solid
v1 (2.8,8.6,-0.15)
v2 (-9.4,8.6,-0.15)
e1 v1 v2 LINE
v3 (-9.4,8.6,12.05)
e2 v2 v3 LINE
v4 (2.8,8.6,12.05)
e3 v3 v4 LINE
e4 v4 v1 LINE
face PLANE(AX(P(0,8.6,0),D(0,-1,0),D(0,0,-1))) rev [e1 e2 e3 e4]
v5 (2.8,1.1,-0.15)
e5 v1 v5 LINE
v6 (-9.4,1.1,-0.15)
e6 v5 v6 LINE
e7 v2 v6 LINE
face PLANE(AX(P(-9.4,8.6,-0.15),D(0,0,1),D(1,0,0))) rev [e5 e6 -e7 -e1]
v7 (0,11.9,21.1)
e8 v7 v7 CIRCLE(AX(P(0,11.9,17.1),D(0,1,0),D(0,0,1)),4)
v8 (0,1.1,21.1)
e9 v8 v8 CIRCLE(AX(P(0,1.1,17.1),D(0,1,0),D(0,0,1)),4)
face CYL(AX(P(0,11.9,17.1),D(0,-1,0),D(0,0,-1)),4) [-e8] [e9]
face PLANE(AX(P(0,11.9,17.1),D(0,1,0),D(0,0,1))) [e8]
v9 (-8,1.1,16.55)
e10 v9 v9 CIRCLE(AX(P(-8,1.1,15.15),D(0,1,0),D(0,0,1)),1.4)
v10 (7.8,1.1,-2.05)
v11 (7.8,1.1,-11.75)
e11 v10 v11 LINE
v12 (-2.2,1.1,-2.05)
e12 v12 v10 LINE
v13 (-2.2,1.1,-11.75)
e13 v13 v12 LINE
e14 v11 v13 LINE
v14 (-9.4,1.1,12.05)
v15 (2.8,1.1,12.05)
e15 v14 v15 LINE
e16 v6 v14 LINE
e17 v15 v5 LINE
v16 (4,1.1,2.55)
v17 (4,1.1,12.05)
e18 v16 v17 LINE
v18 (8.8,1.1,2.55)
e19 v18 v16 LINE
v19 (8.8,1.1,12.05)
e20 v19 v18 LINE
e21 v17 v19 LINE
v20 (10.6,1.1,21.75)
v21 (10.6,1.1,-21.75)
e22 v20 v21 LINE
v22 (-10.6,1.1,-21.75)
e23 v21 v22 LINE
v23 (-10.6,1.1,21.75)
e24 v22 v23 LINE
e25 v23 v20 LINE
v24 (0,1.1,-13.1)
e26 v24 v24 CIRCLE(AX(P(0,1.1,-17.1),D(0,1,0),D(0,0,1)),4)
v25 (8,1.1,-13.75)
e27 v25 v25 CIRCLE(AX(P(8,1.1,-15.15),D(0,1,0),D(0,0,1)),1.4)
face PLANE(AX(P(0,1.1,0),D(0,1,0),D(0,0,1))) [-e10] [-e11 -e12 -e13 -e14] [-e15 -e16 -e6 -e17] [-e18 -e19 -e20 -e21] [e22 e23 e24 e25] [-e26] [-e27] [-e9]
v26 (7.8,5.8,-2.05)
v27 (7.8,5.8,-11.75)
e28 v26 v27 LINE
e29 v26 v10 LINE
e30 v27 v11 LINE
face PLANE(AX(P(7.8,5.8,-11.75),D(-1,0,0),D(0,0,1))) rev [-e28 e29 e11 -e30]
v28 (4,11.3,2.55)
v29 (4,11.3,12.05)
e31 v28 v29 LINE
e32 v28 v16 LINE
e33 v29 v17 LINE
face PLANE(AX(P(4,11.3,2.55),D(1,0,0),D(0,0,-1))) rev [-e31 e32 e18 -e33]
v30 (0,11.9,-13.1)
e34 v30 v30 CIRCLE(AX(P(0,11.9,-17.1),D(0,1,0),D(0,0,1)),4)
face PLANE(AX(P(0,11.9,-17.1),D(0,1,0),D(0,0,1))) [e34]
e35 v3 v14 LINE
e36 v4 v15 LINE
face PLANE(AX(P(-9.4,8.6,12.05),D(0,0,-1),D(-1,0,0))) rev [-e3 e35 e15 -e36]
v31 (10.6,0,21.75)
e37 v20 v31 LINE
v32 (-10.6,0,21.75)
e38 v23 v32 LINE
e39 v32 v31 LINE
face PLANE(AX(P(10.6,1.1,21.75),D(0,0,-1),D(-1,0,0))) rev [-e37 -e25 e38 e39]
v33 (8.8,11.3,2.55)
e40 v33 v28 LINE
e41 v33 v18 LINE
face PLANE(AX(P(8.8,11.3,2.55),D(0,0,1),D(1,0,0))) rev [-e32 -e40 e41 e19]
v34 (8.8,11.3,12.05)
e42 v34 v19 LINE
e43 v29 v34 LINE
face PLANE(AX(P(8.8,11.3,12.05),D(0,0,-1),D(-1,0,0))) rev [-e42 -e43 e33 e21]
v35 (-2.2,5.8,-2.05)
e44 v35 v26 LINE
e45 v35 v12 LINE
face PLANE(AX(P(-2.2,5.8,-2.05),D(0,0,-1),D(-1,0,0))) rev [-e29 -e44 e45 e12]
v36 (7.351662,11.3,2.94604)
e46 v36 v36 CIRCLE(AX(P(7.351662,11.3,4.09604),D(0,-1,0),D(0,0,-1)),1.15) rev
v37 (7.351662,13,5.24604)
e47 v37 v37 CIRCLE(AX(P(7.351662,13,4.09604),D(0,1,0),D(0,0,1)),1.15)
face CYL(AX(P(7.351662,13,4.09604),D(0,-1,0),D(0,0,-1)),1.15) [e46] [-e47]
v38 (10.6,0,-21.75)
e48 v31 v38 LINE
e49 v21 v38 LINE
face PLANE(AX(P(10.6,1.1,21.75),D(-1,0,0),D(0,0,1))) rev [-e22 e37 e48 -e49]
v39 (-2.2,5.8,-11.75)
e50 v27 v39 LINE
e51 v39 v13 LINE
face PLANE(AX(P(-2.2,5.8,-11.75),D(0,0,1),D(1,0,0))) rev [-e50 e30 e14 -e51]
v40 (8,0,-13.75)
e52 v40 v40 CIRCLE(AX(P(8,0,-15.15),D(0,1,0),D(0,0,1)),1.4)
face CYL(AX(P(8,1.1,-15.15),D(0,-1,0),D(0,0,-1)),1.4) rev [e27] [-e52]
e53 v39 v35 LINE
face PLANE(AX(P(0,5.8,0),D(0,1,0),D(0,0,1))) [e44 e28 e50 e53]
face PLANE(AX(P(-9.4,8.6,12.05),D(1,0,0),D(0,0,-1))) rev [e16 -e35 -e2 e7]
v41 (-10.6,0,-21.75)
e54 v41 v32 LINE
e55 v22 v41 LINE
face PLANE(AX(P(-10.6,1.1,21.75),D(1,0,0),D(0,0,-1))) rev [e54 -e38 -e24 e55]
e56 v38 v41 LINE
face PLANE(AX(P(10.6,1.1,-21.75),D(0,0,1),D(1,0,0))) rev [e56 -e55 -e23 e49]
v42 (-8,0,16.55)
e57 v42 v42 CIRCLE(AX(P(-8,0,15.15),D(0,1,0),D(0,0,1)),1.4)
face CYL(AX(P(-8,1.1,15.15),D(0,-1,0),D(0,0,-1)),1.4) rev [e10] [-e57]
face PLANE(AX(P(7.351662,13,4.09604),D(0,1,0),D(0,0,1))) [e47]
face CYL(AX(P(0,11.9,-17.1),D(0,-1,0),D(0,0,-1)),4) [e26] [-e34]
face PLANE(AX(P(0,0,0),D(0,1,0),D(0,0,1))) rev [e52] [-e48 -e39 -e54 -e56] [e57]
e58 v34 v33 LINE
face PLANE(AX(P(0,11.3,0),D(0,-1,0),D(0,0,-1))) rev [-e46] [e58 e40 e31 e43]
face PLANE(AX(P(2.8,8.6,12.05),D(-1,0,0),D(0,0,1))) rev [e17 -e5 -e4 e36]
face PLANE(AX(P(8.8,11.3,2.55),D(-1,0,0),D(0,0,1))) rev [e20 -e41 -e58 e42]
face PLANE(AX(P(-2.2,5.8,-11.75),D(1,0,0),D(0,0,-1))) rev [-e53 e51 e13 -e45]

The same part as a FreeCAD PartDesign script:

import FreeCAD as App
import Part
import Sketcher

V = App.Vector

doc = App.newDocument("Part")
params = doc.addObject("Spreadsheet::Sheet", "Params")
for row, (alias, value) in enumerate([
    ("sketch1_diameter", "2.8 mm"),
    ("sketch1_width", "21.2 mm"),
    ("sketch1_height", "43.5 mm"),
    ("pad1_length", "1.1 mm"),
    ("sketch2_diameter", "8 mm"),
    ("pad2_length", "10.8 mm"),
    ("sketch3_width", "12.2 mm"),
    ("pad3_length", "7.5 mm"),
    ("sketch4_width", "4.8 mm"),
    ("sketch4_height", "9.5 mm"),
    ("pad4_length", "10.2 mm"),
    ("sketch5_width", "10 mm"),
    ("sketch5_height", "9.7 mm"),
    ("pad5_length", "4.7 mm"),
    ("sketch6_diameter", "2.3 mm"),
    ("pad6_length", "1.7 mm"),
], start=1):
    params.set(f"A{row}", alias)
    params.set(f"B{row}", "=" + value)
    params.setAlias(f"B{row}", alias)

body = doc.addObject("PartDesign::Body", "Body")

# Sketch on XZ plane
sketch1 = body.newObject("Sketcher::SketchObject", "Sketch")
sketch1.AttachmentSupport = (doc.getObject("XZ_Plane"), [""])
sketch1.MapMode = "FlatFace"
sketch1.addGeometry([
    Part.LineSegment(V(-10.6, -21.8, 0), V(-10.6, 21.8, 0)),  # 0
    Part.LineSegment(V(-10.6, 21.8, 0), V(10.6, 21.8, 0)),  # 1
    Part.LineSegment(V(10.6, 21.8, 0), V(10.6, -21.8, 0)),  # 2
    Part.LineSegment(V(10.6, -21.8, 0), V(-10.6, -21.8, 0)),  # 3
    Part.Circle(V(-8, 15.2, 0), V(0, 0, 1), 1.4),  # 4
    Part.Circle(V(8, -15.2, 0), V(0, 0, 1), 1.4),  # 5
], False)
sketch1.addConstraint([
    Sketcher.Constraint("Coincident", 0, 2, 1, 1),
    Sketcher.Constraint("Coincident", 1, 2, 2, 1),
    Sketcher.Constraint("Coincident", 2, 2, 3, 1),
    Sketcher.Constraint("Coincident", 3, 2, 0, 1),
    Sketcher.Constraint("Vertical", 0),
    Sketcher.Constraint("Horizontal", 1),
    Sketcher.Constraint("Vertical", 2),
    Sketcher.Constraint("Horizontal", 3),
    Sketcher.Constraint("Equal", 4, 5),
    Sketcher.Constraint("Symmetric", 4, 3, 5, 3, -1, 1),
    Sketcher.Constraint("Symmetric", 0, 2, 2, 2, -1, 1),
    Sketcher.Constraint("Diameter", 4, 2.8),
    Sketcher.Constraint("DistanceX", 1, 1, 1, 2, 21.2),
    Sketcher.Constraint("DistanceY", 0, 1, 0, 2, 43.5),
    Sketcher.Constraint("DistanceX", 4, 3, -1, 1, 8.0),
    Sketcher.Constraint("DistanceY", 5, 3, 4, 3, 30.3),
])
sketch1.setExpression("Constraints[11]", "Params.sketch1_diameter")
sketch1.setExpression("Constraints[12]", "Params.sketch1_width")
sketch1.setExpression("Constraints[13]", "Params.sketch1_height")
pad1 = body.newObject("PartDesign::Pad", "Pad")
pad1.Profile = sketch1
pad1.setExpression("Length", "Params.pad1_length")
pad1.Reversed = True

# Sketch on XZ plane
sketch2 = body.newObject("Sketcher::SketchObject", "Sketch001")
sketch2.AttachmentSupport = (doc.getObject("XZ_Plane"), [""])
sketch2.MapMode = "FlatFace"
sketch2.AttachmentOffset = App.Placement(V(0, 0, -1.1), App.Rotation())
sketch2.addGeometry([
    Part.Circle(V(0, -17.1, 0), V(0, 0, 1), 4),
    Part.Circle(V(0, 17.1, 0), V(0, 0, 1), 4),
], False)
sketch2.addConstraint([
    Sketcher.Constraint("Equal", 0, 1),
    Sketcher.Constraint("Symmetric", 0, 3, 1, 3, -1, 1),
    Sketcher.Constraint("PointOnObject", 0, 3, -2),
    Sketcher.Constraint("Diameter", 0, 8.0),
    Sketcher.Constraint("DistanceY", 0, 3, -1, 1, 17.1),
])
sketch2.setExpression("Constraints[3]", "Params.sketch2_diameter")
pad2 = body.newObject("PartDesign::Pad", "Pad001")
pad2.Profile = sketch2
pad2.setExpression("Length", "Params.pad2_length")
pad2.Reversed = True

# Sketch on XZ plane
sketch3 = body.newObject("Sketcher::SketchObject", "Sketch002")
sketch3.AttachmentSupport = (doc.getObject("XZ_Plane"), [""])
sketch3.MapMode = "FlatFace"
sketch3.AttachmentOffset = App.Placement(V(0, 0, -1.1), App.Rotation())
sketch3.addGeometry([
    Part.LineSegment(V(-9, 0, 0), V(-9, 12, 0)),
    Part.LineSegment(V(-9, 12, 0), V(3, 12, 0)),
    Part.LineSegment(V(3, 12, 0), V(3, 0, 0)),
    Part.LineSegment(V(3, 0, 0), V(-9, 0, 0)),
], False)
sketch3.addConstraint([
    Sketcher.Constraint("Coincident", 0, 2, 1, 1),
    Sketcher.Constraint("Coincident", 1, 2, 2, 1),
    Sketcher.Constraint("Coincident", 2, 2, 3, 1),
    Sketcher.Constraint("Coincident", 3, 2, 0, 1),
    Sketcher.Constraint("Vertical", 0),
    Sketcher.Constraint("Horizontal", 1),
    Sketcher.Constraint("Vertical", 2),
    Sketcher.Constraint("Horizontal", 3),
    Sketcher.Constraint("Equal", 3, 0),
    Sketcher.Constraint("DistanceX", 1, 1, 1, 2, 12.2),
    Sketcher.Constraint("DistanceX", 0, 2, -1, 1, 9.4),
    Sketcher.Constraint("DistanceY", -1, 1, 0, 2, 12.05),
])
sketch3.setExpression("Constraints[9]", "Params.sketch3_width")
pad3 = body.newObject("PartDesign::Pad", "Pad002")
pad3.Profile = sketch3
pad3.setExpression("Length", "Params.pad3_length")
pad3.Reversed = True

# Sketch on XZ plane
sketch4 = body.newObject("Sketcher::SketchObject", "Sketch003")
sketch4.AttachmentSupport = (doc.getObject("XZ_Plane"), [""])
sketch4.MapMode = "FlatFace"
sketch4.AttachmentOffset = App.Placement(V(0, 0, -1.1), App.Rotation())
sketch4.addGeometry([
    Part.LineSegment(V(4, 2.5, 0), V(4, 12.1, 0)),
    Part.LineSegment(V(4, 12.1, 0), V(8.8, 12.1, 0)),
    Part.LineSegment(V(8.8, 12.1, 0), V(8.8, 2.5, 0)),
    Part.LineSegment(V(8.8, 2.5, 0), V(4, 2.5, 0)),
], False)
sketch4.addConstraint([
    Sketcher.Constraint("Coincident", 0, 2, 1, 1),
    Sketcher.Constraint("Coincident", 1, 2, 2, 1),
    Sketcher.Constraint("Coincident", 2, 2, 3, 1),
    Sketcher.Constraint("Coincident", 3, 2, 0, 1),
    Sketcher.Constraint("Vertical", 0),
    Sketcher.Constraint("Horizontal", 1),
    Sketcher.Constraint("Vertical", 2),
    Sketcher.Constraint("Horizontal", 3),
    Sketcher.Constraint("DistanceX", 1, 1, 1, 2, 4.8),
    Sketcher.Constraint("DistanceY", 0, 1, 0, 2, 9.5),
    Sketcher.Constraint("DistanceX", -1, 1, 0, 2, 4.0),
    Sketcher.Constraint("DistanceY", -1, 1, 0, 2, 12.05),
])
sketch4.setExpression("Constraints[8]", "Params.sketch4_width")
sketch4.setExpression("Constraints[9]", "Params.sketch4_height")
pad4 = body.newObject("PartDesign::Pad", "Pad003")
pad4.Profile = sketch4
pad4.setExpression("Length", "Params.pad4_length")
pad4.Reversed = True

# Sketch on XZ plane
sketch5 = body.newObject("Sketcher::SketchObject", "Sketch004")
sketch5.AttachmentSupport = (doc.getObject("XZ_Plane"), [""])
sketch5.MapMode = "FlatFace"
sketch5.AttachmentOffset = App.Placement(V(0, 0, -1.1), App.Rotation())
sketch5.addGeometry([
    Part.LineSegment(V(-2, -12, 0), V(-2, -2, 0)),
    Part.LineSegment(V(-2, -2, 0), V(8, -2, 0)),
    Part.LineSegment(V(8, -2, 0), V(8, -12, 0)),
    Part.LineSegment(V(8, -12, 0), V(-2, -12, 0)),
], False)
sketch5.addConstraint([
    Sketcher.Constraint("Coincident", 0, 2, 1, 1),
    Sketcher.Constraint("Coincident", 1, 2, 2, 1),
    Sketcher.Constraint("Coincident", 2, 2, 3, 1),
    Sketcher.Constraint("Coincident", 3, 2, 0, 1),
    Sketcher.Constraint("Vertical", 0),
    Sketcher.Constraint("Horizontal", 1),
    Sketcher.Constraint("Vertical", 2),
    Sketcher.Constraint("Horizontal", 3),
    Sketcher.Constraint("DistanceX", 1, 1, 1, 2, 10.0),
    Sketcher.Constraint("DistanceY", 0, 1, 0, 2, 9.7),
    Sketcher.Constraint("DistanceX", 0, 2, -1, 1, 2.2),
    Sketcher.Constraint("DistanceY", 0, 2, -1, 1, 2.05),
])
sketch5.setExpression("Constraints[8]", "Params.sketch5_width")
sketch5.setExpression("Constraints[9]", "Params.sketch5_height")
pad5 = body.newObject("PartDesign::Pad", "Pad004")
pad5.Profile = sketch5
pad5.setExpression("Length", "Params.pad5_length")
pad5.Reversed = True

# Sketch on XZ plane
sketch6 = body.newObject("Sketcher::SketchObject", "Sketch005")
sketch6.AttachmentSupport = (doc.getObject("XZ_Plane"), [""])
sketch6.MapMode = "FlatFace"
sketch6.AttachmentOffset = App.Placement(V(0, 0, -11.3), App.Rotation())
sketch6.addGeometry(Part.Circle(V(7.4, 4.1, 0), V(0, 0, 1), 1.1), False)
sketch6.addConstraint([
    Sketcher.Constraint("Diameter", 0, 2.3),
    Sketcher.Constraint("DistanceY", -1, 1, 0, 3, 4.09604),
    Sketcher.Constraint("DistanceX", -1, 1, 0, 3, 7.351662),
])
sketch6.setExpression("Constraints[0]", "Params.sketch6_diameter")
pad6 = body.newObject("PartDesign::Pad", "Pad005")
pad6.Profile = sketch6
pad6.setExpression("Length", "Params.pad6_length")
pad6.Reversed = True

doc.recompute()
